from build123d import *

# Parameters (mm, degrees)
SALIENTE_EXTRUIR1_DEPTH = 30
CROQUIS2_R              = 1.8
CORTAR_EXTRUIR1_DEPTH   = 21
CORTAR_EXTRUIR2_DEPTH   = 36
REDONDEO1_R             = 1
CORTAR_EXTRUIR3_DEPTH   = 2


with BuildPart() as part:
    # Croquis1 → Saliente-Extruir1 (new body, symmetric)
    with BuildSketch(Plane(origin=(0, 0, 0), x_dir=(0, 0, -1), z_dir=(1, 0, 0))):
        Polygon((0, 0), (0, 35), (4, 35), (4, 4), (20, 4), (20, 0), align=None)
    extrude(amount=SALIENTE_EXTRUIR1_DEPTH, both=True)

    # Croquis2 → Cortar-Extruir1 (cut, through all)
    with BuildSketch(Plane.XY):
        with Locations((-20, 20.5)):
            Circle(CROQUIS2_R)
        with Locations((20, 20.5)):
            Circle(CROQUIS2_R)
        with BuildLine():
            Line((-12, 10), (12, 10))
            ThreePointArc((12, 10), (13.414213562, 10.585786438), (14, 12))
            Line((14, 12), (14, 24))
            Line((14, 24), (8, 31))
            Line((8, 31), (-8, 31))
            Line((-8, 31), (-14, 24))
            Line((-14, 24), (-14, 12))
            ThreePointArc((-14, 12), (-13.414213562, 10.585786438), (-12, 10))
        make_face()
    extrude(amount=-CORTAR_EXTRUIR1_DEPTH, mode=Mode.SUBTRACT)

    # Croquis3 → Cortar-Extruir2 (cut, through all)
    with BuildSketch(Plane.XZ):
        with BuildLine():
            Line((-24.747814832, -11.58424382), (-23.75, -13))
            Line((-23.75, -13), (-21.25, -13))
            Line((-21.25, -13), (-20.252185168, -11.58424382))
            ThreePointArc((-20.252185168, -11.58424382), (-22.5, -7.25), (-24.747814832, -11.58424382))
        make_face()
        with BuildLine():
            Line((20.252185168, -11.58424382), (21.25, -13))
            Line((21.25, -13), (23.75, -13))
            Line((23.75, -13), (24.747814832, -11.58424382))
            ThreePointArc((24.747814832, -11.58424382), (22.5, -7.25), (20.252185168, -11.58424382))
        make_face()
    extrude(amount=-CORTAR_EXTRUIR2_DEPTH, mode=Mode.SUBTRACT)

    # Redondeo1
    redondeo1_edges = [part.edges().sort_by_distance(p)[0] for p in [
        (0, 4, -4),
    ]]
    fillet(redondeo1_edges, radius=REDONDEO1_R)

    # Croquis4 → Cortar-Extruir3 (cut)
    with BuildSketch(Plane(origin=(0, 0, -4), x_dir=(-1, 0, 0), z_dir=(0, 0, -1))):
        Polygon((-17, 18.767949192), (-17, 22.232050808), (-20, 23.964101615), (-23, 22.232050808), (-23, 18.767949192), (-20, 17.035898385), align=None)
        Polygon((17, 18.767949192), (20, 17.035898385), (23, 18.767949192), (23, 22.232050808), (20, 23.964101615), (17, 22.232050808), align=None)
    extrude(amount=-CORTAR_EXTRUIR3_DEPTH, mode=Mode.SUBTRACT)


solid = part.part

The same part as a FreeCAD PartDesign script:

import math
import FreeCAD as App
import Part
import Sketcher

V = App.Vector
Q = App.Units.Quantity


def edges_at(feature, points):
    """Names of the edges that pass closest to the given points."""
    edges = feature.Shape.Edges
    near = lambda p: min(range(len(edges)), key=lambda i: edges[i].distToShape(Part.Vertex(*p))[0])
    return sorted({f"Edge{near(p) + 1}" for p in points})

doc = App.newDocument("Part")
params = doc.addObject("Spreadsheet::Sheet", "Params")
for row, (alias, value) in enumerate([
    ("sketch1_width", "35 mm"),
    ("sketch1_width2", "4 mm"),
    ("sketch1_height", "20 mm"),
    ("pad1_length", "60 mm"),
    ("sketch2_radius", "2 mm"),
    ("sketch2_diameter", "3.6 mm"),
    ("sketch2_width", "24 mm"),
    ("sketch2_width2", "16 mm"),
    ("sketch2_height", "12 mm"),
    ("sketch3_radius", "2.75 mm"),
    ("sketch3_width", "2.5 mm"),
    ("fillet_radius", "1 mm"),
    ("pocket3_length", "2 mm"),
], start=1):
    params.set(f"A{row}", alias)
    params.set(f"B{row}", "=" + value)
    params.setAlias(f"B{row}", alias)

body = doc.addObject("PartDesign::Body", "Body")

sketch1 = body.newObject("Sketcher::SketchObject", "Sketch")
sketch1.AttachmentSupport = (doc.getObject("YZ_Plane"), [""])
sketch1.MapMode = "FlatFace"
sketch1.addGeometry(Part.LineSegment(V(35, 0, 0), V(0, 0, 0)), False)
sketch1.addGeometry(Part.LineSegment(V(0, 0, 0), V(0, -20, 0)), False)
sketch1.addGeometry(Part.LineSegment(V(0, -20, 0), V(4, -20, 0)), False)
sketch1.addGeometry(Part.LineSegment(V(4, -20, 0), V(4, -4, 0)), False)
sketch1.addGeometry(Part.LineSegment(V(4, -4, 0), V(35, -4, 0)), False)
sketch1.addGeometry(Part.LineSegment(V(35, -4, 0), V(35, 0, 0)), False)
sketch1.addConstraint(Sketcher.Constraint("Coincident", 0, 2, 1, 1))
sketch1.addConstraint(Sketcher.Constraint("Coincident", 1, 2, 2, 1))
sketch1.addConstraint(Sketcher.Constraint("Coincident", 2, 2, 3, 1))
sketch1.addConstraint(Sketcher.Constraint("Coincident", 3, 2, 4, 1))
sketch1.addConstraint(Sketcher.Constraint("Coincident", 4, 2, 5, 1))
sketch1.addConstraint(Sketcher.Constraint("Coincident", 5, 2, 0, 1))
sketch1.addConstraint(Sketcher.Constraint("Horizontal", 0))
sketch1.addConstraint(Sketcher.Constraint("Vertical", 1))
sketch1.addConstraint(Sketcher.Constraint("Horizontal", 2))
sketch1.addConstraint(Sketcher.Constraint("Vertical", 3))
sketch1.addConstraint(Sketcher.Constraint("Horizontal", 4))
sketch1.addConstraint(Sketcher.Constraint("Vertical", 5))
sketch1.addConstraint(Sketcher.Constraint("Coincident", 0, 2, -1, 1))
sketch1.addConstraint(Sketcher.Constraint("Equal", 2, 5))
sketch1.addConstraint(Sketcher.Constraint("DistanceX", 0, 2, 0, 1, 35.0))
sketch1.addConstraint(Sketcher.Constraint("DistanceX", 2, 1, 2, 2, 4.0))
sketch1.addConstraint(Sketcher.Constraint("DistanceY", 1, 2, 1, 1, 20.0))
sketch1.setExpression("Constraints[14]", "Params.sketch1_width")
sketch1.setExpression("Constraints[15]", "Params.sketch1_width2")
sketch1.setExpression("Constraints[16]", "Params.sketch1_height")
pad1 = body.newObject("PartDesign::Pad", "Pad")
pad1.Profile = sketch1
pad1.setExpression("Length", "Params.pad1_length")
pad1.Midplane = True

sketch2 = body.newObject("Sketcher::SketchObject", "Sketch001")
sketch2.AttachmentSupport = (doc.getObject("XY_Plane"), [""])
sketch2.MapMode = "FlatFace"
sketch2.addGeometry(Part.Circle(V(-20, 20.5, 0), V(0, 0, 1), 1.8), False)
sketch2.addGeometry(Part.Circle(V(20, 20.5, 0), V(0, 0, 1), 1.8), False)
sketch2.addGeometry(Part.LineSegment(V(-12, 10, 0), V(12, 10, 0)), False)
sketch2.addGeometry(Part.ArcOfCircle(Part.Circle(V(12, 12, 0), V(0, 0, 1), 2), math.radians(-90), math.radians(0)), False)
sketch2.addGeometry(Part.LineSegment(V(14, 12, 0), V(14, 24, 0)), False)
sketch2.addGeometry(Part.LineSegment(V(14, 24, 0), V(8, 31, 0)), False)
sketch2.addGeometry(Part.LineSegment(V(8, 31, 0), V(-8, 31, 0)), False)
sketch2.addGeometry(Part.LineSegment(V(-8, 31, 0), V(-14, 24, 0)), False)
sketch2.addGeometry(Part.LineSegment(V(-14, 24, 0), V(-14, 12, 0)), False)
sketch2.addGeometry(Part.ArcOfCircle(Part.Circle(V(-12, 12, 0), V(0, 0, 1), 2), math.radians(-180), math.radians(-90)), False)
sketch2.addConstraint(Sketcher.Constraint("Tangent", 2, 2, 3, 1))
sketch2.addConstraint(Sketcher.Constraint("Tangent", 3, 2, 4, 1))
sketch2.addConstraint(Sketcher.Constraint("Coincident", 4, 2, 5, 1))
sketch2.addConstraint(Sketcher.Constraint("Coincident", 5, 2, 6, 1))
sketch2.addConstraint(Sketcher.Constraint("Coincident", 6, 2, 7, 1))
sketch2.addConstraint(Sketcher.Constraint("Coincident", 7, 2, 8, 1))
sketch2.addConstraint(Sketcher.Constraint("Tangent", 8, 2, 9, 1))
sketch2.addConstraint(Sketcher.Constraint("Tangent", 9, 2, 2, 1))
sketch2.addConstraint(Sketcher.Constraint("Horizontal", 2))
sketch2.addConstraint(Sketcher.Constraint("Vertical", 4))
sketch2.addConstraint(Sketcher.Constraint("Horizontal", 6))
sketch2.addConstraint(Sketcher.Constraint("Vertical", 8))
sketch2.addConstraint(Sketcher.Constraint("Equal", 0, 1))
sketch2.addConstraint(Sketcher.Constraint("Equal", 3, 9))
sketch2.addConstraint(Sketcher.Constraint("Symmetric", 0, 3, 1, 3, -2))
sketch2.addConstraint(Sketcher.Constraint("Symmetric", 4, 2, 7, 2, -2))
sketch2.addConstraint(Sketcher.Constraint("Equal", 5, 7))
sketch2.addConstraint(Sketcher.Constraint("Radius", 3, 2.0))
sketch2.addConstraint(Sketcher.Constraint("Diameter", 0, 3.6))
sketch2.addConstraint(Sketcher.Constraint("DistanceX", 2, 1, 2, 2, 24.0))
sketch2.addConstraint(Sketcher.Constraint("DistanceX", 6, 2, 6, 1, 16.0))
sketch2.addConstraint(Sketcher.Constraint("DistanceY", 4, 1, 4, 2, 12.0))
sketch2.addConstraint(Sketcher.Constraint("DistanceX", 0, 3, -1, 1, 20.0))
sketch2.addConstraint(Sketcher.Constraint("DistanceY", -1, 1, 3, 3, 12.0))
sketch2.addConstraint(Sketcher.Constraint("DistanceY", -1, 1, 5, 2, 31.0))
sketch2.addConstraint(Sketcher.Constraint("DistanceY", -1, 1, 0, 3, 20.5))
sketch2.setExpression("Constraints[17]", "Params.sketch2_radius")
sketch2.setExpression("Constraints[18]", "Params.sketch2_diameter")
sketch2.setExpression("Constraints[19]", "Params.sketch2_width")
sketch2.setExpression("Constraints[20]", "Params.sketch2_width2")
sketch2.setExpression("Constraints[21]", "Params.sketch2_height")
pocket1 = body.newObject("PartDesign::Pocket", "Pocket")
pocket1.Profile = sketch2
pocket1.Type = "ThroughAll"

sketch3 = body.newObject("Sketcher::SketchObject", "Sketch002")
sketch3.AttachmentSupport = (doc.getObject("XZ_Plane"), [""])
sketch3.MapMode = "FlatFace"
sketch3.addGeometry(Part.LineSegment(V(-24.7, -11.6, 0), V(-23.8, -13, 0)), False)
sketch3.addGeometry(Part.LineSegment(V(-23.8, -13, 0), V(-21.2, -13, 0)), False)
sketch3.addGeometry(Part.LineSegment(V(-21.2, -13, 0), V(-20.3, -11.6, 0)), False)
sketch3.addGeometry(Part.ArcOfCircle(Part.Circle(V(-22.5, -10, 0), V(0, 0, 1), 2.8), math.radians(-35), math.radians(215)), False)
sketch3.addGeometry(Part.LineSegment(V(20.3, -11.6, 0), V(21.2, -13, 0)), False)
sketch3.addGeometry(Part.LineSegment(V(21.2, -13, 0), V(23.8, -13, 0)), False)
sketch3.addGeometry(Part.LineSegment(V(23.8, -13, 0), V(24.7, -11.6, 0)), False)
sketch3.addGeometry(Part.ArcOfCircle(Part.Circle(V(22.5, -10, 0), V(0, 0, 1), 2.8), math.radians(-35), math.radians(215)), False)
sketch3.addConstraint(Sketcher.Constraint("Coincident", 0, 2, 1, 1))
sketch3.addConstraint(Sketcher.Constraint("Coincident", 1, 2, 2, 1))
sketch3.addConstraint(Sketcher.Constraint("Tangent", 2, 2, 3, 1))
sketch3.addConstraint(Sketcher.Constraint("Tangent", 3, 2, 0, 1))
sketch3.addConstraint(Sketcher.Constraint("Coincident", 4, 2, 5, 1))
sketch3.addConstraint(Sketcher.Constraint("Coincident", 5, 2, 6, 1))
sketch3.addConstraint(Sketcher.Constraint("Tangent", 6, 2, 7, 1))
sketch3.addConstraint(Sketcher.Constraint("Tangent", 7, 2, 4, 1))
sketch3.addConstraint(Sketcher.Constraint("Horizontal", 1))
sketch3.addConstraint(Sketcher.Constraint("Horizontal", 5))
sketch3.addConstraint(Sketcher.Constraint("Equal", 3, 7))
sketch3.addConstraint(Sketcher.Constraint("Symmetric", 3, 3, 7, 3, -2))
sketch3.addConstraint(Sketcher.Constraint("Symmetric", 1, 2, 4, 2, -2))
sketch3.addConstraint(Sketcher.Constraint("Parallel", 0, 4))
sketch3.addConstraint(Sketcher.Constraint("Parallel", 2, 6))
sketch3.addConstraint(Sketcher.Constraint("Radius", 3, 2.75))
sketch3.addConstraint(Sketcher.Constraint("DistanceX", 1, 1, 1, 2, 2.5))
sketch3.addConstraint(Sketcher.Constraint("DistanceY", 3, 3, -1, 1, 10.0))
sketch3.addConstraint(Sketcher.Constraint("DistanceY", 0, 2, -1, 1, 13.0))
sketch3.addConstraint(Sketcher.Constraint("DistanceX", 3, 3, 7, 3, 45.0))
sketch3.setExpression("Constraints[15]", "Params.sketch3_radius")
sketch3.setExpression("Constraints[16]", "Params.sketch3_width")
pocket2 = body.newObject("PartDesign::Pocket", "Pocket001")
pocket2.Profile = sketch3
pocket2.Type = "ThroughAll"
doc.recompute()

fillet = body.newObject("PartDesign::Fillet", "Fillet")
fillet.Base = (pocket2, edges_at(pocket2, [(0, 4, -4)]))
fillet.setExpression("Radius", "Params.fillet_radius")

sketch4 = body.newObject("Sketcher::SketchObject", "Sketch003")
sketch4.AttachmentSupport = (doc.getObject("XY_Plane"), [""])
sketch4.MapMode = "FlatFace"
sketch4.AttachmentOffset = App.Placement(V(0, 0, -4), App.Rotation())
sketch4.addGeometry(Part.LineSegment(V(17, 18.8, 0), V(17, 22.2, 0)), False)
sketch4.addGeometry(Part.LineSegment(V(17, 22.2, 0), V(20, 24, 0)), False)
sketch4.addGeometry(Part.LineSegment(V(20, 24, 0), V(23, 22.2, 0)), False)
sketch4.addGeometry(Part.LineSegment(V(23, 22.2, 0), V(23, 18.8, 0)), False)
sketch4.addGeometry(Part.LineSegment(V(23, 18.8, 0), V(20, 17, 0)), False)
sketch4.addGeometry(Part.LineSegment(V(20, 17, 0), V(17, 18.8, 0)), False)
sketch4.addGeometry(Part.LineSegment(V(-17, 18.8, 0), V(-20, 17, 0)), False)
sketch4.addGeometry(Part.LineSegment(V(-20, 17, 0), V(-23, 18.8, 0)), False)
sketch4.addGeometry(Part.LineSegment(V(-23, 18.8, 0), V(-23, 22.2, 0)), False)
sketch4.addGeometry(Part.LineSegment(V(-23, 22.2, 0), V(-20, 24, 0)), False)
sketch4.addGeometry(Part.LineSegment(V(-20, 24, 0), V(-17, 22.2, 0)), False)
sketch4.addGeometry(Part.LineSegment(V(-17, 22.2, 0), V(-17, 18.8, 0)), False)
sketch4.addConstraint(Sketcher.Constraint("Coincident", 0, 2, 1, 1))
sketch4.addConstraint(Sketcher.Constraint("Coincident", 1, 2, 2, 1))
sketch4.addConstraint(Sketcher.Constraint("Coincident", 2, 2, 3, 1))
sketch4.addConstraint(Sketcher.Constraint("Coincident", 3, 2, 4, 1))
sketch4.addConstraint(Sketcher.Constraint("Coincident", 4, 2, 5, 1))
sketch4.addConstraint(Sketcher.Constraint("Coincident", 5, 2, 0, 1))
sketch4.addConstraint(Sketcher.Constraint("Coincident", 6, 2, 7, 1))
sketch4.addConstraint(Sketcher.Constraint("Coincident", 7, 2, 8, 1))
sketch4.addConstraint(Sketcher.Constraint("Coincident", 8, 2, 9, 1))
sketch4.addConstraint(Sketcher.Constraint("Coincident", 9, 2, 10, 1))
sketch4.addConstraint(Sketcher.Constraint("Coincident", 10, 2, 11, 1))
sketch4.addConstraint(Sketcher.Constraint("Coincident", 11, 2, 6, 1))
sketch4.addConstraint(Sketcher.Constraint("Vertical", 0))
sketch4.addConstraint(Sketcher.Constraint("Vertical", 3))
sketch4.addConstraint(Sketcher.Constraint("Vertical", 8))
sketch4.addConstraint(Sketcher.Constraint("Vertical", 11))
sketch4.addConstraint(Sketcher.Constraint("Symmetric", 4, 2, 6, 2, -2))
sketch4.addConstraint(Sketcher.Constraint("Symmetric", 3, 2, 7, 2, -2))
sketch4.addConstraint(Sketcher.Constraint("Symmetric", 1, 2, 9, 2, -2))
sketch4.addConstraint(Sketcher.Constraint("Symmetric", 0, 2, 10, 2, -2))
sketch4.addConstraint(Sketcher.Constraint("Parallel", 1, 4))
sketch4.addConstraint(Sketcher.Constraint("Parallel", 2, 5))
sketch4.addConstraint(Sketcher.Constraint("Parallel", 4, 6))
sketch4.addConstraint(Sketcher.Constraint("Parallel", 5, 7))
sketch4.addConstraint(Sketcher.Constraint("Parallel", 6, 9))
sketch4.addConstraint(Sketcher.Constraint("Horizontal", 0, 2, 2, 2))
sketch4.addConstraint(Sketcher.Constraint("Horizontal", 3, 2, 5, 2))
sketch4.addConstraint(Sketcher.Constraint("Angle", 1, Q("30 deg")))
sketch4.addConstraint(Sketcher.Constraint("DistanceX", -1, 1, 0, 2, 17.0))
sketch4.addConstraint(Sketcher.Constraint("DistanceX", -1, 1, 1, 2, 20.0))
sketch4.addConstraint(Sketcher.Constraint("DistanceY", 0, 1, 0, 2, 3.464102))
sketch4.addConstraint(Sketcher.Constraint("DistanceY", -1, 1, 1, 2, 23.964102))
pocket3 = body.newObject("PartDesign::Pocket", "Pocket002")
pocket3.Profile = sketch4
pocket3.setExpression("Length", "Params.pocket3_length")
pocket3.Reversed = True

doc.recompute()
